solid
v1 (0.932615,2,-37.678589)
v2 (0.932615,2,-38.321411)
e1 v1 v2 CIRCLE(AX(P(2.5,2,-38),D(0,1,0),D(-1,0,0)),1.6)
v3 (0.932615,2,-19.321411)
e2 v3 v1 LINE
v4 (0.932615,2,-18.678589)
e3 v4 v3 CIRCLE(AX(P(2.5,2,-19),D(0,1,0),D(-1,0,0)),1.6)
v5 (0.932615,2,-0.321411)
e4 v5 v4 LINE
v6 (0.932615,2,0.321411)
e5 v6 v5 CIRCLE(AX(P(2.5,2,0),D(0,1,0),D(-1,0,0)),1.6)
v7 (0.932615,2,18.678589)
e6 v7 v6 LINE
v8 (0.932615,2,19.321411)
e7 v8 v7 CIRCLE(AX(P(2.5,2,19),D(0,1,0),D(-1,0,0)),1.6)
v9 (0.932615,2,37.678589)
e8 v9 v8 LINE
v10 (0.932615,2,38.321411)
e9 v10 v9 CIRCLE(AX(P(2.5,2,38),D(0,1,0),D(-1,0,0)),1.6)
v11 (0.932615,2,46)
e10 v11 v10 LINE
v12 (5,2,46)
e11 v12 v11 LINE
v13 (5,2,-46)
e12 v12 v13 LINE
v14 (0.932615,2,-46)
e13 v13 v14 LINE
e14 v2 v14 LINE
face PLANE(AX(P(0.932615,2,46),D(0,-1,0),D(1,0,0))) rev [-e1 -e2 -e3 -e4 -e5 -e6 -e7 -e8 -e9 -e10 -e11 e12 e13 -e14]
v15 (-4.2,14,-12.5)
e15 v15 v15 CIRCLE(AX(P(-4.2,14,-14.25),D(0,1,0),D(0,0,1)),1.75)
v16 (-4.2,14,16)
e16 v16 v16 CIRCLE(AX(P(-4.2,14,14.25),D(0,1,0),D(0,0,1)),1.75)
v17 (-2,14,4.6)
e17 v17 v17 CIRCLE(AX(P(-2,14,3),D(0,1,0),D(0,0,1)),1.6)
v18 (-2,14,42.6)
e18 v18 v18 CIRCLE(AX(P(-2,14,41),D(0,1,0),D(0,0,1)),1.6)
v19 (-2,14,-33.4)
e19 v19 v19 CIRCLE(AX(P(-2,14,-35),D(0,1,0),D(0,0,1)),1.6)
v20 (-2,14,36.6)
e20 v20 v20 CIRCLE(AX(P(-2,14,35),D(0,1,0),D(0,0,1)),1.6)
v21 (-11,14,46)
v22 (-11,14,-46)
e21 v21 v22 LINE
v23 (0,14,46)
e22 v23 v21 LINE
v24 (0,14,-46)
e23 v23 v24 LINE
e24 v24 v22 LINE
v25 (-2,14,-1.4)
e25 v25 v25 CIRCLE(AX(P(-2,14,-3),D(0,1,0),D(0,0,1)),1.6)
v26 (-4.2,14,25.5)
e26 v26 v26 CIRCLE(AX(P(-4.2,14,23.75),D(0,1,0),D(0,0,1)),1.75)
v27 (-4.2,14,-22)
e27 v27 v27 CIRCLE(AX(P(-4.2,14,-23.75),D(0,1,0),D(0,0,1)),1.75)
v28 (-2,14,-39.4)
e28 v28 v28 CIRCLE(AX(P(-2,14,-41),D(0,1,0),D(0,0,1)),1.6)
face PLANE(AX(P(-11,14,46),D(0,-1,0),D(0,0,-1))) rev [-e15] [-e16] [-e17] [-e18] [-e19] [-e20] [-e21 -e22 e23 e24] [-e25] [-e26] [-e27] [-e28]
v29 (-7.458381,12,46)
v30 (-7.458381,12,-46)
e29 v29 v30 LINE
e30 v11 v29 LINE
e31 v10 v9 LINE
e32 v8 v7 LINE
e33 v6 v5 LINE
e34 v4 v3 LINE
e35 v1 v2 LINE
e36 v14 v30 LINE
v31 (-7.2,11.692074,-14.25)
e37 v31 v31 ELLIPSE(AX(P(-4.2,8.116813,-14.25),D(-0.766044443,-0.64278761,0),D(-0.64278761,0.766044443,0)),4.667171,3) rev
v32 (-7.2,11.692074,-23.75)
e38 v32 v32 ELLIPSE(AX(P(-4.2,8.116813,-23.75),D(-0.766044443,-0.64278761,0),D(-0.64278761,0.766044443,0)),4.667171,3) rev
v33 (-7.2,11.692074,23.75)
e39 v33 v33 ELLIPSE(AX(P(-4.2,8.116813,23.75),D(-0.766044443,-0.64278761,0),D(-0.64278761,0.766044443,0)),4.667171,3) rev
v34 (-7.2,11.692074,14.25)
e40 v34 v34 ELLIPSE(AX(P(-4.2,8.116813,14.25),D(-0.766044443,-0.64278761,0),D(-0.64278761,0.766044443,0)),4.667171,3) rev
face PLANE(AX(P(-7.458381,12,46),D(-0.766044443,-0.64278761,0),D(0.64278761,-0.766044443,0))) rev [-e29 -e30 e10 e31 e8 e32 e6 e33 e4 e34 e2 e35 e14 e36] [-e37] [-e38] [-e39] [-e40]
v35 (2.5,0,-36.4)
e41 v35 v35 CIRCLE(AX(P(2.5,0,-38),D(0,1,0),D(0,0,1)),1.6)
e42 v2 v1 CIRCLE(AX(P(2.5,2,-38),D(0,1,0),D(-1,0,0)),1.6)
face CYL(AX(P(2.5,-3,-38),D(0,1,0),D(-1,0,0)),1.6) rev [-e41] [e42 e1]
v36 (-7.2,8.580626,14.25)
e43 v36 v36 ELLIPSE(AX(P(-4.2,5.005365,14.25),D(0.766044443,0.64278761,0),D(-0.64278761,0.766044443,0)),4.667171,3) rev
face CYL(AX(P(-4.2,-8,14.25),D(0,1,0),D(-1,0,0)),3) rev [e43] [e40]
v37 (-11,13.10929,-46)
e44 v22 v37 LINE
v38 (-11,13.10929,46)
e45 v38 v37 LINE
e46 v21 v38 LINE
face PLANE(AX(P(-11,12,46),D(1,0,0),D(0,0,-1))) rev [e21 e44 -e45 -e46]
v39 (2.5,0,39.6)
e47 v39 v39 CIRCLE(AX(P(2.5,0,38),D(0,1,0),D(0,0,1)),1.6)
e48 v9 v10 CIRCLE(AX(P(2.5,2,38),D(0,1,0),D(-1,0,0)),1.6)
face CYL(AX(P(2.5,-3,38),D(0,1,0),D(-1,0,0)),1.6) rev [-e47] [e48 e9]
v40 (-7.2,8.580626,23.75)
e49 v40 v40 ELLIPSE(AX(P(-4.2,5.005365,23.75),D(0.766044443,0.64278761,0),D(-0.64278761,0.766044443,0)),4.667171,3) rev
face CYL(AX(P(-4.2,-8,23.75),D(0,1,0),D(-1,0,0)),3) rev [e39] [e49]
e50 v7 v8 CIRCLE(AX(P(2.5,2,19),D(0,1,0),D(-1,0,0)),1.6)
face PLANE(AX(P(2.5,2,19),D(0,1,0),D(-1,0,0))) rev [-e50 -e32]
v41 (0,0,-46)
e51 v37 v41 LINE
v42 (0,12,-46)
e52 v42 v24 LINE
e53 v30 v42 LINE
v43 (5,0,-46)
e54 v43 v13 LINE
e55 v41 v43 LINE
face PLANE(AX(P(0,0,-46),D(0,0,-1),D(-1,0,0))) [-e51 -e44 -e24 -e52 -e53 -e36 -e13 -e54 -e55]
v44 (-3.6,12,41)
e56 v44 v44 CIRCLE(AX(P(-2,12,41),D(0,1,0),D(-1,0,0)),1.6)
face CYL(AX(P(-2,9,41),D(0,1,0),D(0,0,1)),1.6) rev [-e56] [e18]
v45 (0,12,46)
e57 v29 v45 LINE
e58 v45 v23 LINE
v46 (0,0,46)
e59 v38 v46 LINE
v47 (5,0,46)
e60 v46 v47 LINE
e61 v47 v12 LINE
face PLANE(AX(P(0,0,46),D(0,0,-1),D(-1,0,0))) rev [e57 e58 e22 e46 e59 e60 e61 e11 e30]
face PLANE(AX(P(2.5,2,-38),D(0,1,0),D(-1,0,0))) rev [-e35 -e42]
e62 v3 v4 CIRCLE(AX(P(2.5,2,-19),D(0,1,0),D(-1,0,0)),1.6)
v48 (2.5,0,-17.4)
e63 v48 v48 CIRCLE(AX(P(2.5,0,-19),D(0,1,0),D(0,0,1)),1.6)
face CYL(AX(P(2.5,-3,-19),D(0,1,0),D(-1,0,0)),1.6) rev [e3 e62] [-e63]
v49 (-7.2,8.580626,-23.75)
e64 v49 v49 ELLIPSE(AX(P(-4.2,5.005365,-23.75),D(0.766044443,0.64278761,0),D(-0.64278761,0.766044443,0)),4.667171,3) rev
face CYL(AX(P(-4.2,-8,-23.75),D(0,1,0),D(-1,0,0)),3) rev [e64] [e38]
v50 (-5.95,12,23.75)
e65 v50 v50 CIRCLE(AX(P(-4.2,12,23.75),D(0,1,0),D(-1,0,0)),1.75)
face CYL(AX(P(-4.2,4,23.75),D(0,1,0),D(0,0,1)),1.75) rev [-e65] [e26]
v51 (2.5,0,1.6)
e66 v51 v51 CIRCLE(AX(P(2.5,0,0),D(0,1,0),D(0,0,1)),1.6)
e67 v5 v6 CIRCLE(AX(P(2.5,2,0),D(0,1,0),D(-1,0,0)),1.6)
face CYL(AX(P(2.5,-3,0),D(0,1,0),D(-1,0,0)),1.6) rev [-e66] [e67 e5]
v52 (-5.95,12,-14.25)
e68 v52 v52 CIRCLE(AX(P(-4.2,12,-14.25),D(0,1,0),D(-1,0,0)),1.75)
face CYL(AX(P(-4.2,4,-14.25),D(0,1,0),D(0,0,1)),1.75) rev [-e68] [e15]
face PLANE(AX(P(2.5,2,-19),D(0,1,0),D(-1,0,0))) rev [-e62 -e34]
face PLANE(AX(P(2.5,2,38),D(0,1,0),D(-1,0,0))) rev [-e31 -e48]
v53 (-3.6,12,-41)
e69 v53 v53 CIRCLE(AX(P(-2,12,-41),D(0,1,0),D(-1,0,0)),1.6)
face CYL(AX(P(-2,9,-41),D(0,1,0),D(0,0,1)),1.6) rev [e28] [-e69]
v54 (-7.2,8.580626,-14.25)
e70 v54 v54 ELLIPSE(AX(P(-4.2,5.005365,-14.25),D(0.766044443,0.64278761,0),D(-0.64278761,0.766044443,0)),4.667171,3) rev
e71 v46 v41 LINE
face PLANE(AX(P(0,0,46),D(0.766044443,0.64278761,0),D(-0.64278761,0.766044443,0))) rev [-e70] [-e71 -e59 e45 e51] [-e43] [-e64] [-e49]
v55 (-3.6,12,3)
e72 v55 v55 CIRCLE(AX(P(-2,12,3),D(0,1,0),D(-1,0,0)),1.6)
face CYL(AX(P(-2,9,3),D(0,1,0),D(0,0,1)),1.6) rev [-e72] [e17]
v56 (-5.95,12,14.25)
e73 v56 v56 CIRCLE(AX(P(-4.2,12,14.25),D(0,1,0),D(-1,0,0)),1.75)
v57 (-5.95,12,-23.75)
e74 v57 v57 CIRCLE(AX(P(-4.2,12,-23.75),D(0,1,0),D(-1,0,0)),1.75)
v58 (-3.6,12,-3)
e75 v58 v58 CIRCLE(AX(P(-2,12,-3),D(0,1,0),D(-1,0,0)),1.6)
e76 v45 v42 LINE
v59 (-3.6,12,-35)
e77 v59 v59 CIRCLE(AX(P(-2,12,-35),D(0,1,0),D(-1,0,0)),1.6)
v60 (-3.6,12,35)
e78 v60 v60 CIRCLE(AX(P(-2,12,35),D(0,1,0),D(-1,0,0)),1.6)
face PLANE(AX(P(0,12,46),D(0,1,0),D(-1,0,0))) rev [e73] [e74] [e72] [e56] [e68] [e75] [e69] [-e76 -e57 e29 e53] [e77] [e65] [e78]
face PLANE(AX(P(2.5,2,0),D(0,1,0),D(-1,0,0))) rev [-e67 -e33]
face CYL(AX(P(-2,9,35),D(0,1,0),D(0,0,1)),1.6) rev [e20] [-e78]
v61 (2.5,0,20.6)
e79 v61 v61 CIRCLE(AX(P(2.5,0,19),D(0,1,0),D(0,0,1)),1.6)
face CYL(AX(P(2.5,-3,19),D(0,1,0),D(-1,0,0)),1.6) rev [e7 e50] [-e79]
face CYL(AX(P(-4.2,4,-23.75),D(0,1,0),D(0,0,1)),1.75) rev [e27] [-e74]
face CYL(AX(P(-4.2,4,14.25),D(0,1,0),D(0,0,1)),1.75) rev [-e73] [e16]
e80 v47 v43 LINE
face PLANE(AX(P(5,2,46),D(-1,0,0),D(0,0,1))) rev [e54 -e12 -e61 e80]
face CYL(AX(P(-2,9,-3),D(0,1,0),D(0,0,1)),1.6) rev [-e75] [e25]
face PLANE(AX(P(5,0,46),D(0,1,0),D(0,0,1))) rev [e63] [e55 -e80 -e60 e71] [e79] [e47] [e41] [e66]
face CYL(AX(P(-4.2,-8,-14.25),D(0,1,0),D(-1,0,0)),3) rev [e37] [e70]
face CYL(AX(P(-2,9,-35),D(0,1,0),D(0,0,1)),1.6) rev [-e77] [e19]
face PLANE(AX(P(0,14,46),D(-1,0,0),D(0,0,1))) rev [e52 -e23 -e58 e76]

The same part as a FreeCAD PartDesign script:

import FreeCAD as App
import Part
import Sketcher

V = App.Vector
Q = App.Units.Quantity


def add_polygon(sketch, points):
    """Adds a closed chain of lines whose ends are joined by coincident constraints."""
    first, n = sketch.GeometryCount, len(points)
    for a, b in zip(points, points[1:] + points[:1]):
        sketch.addGeometry(Part.LineSegment(App.Vector(*a, 0), App.Vector(*b, 0)), False)
    for i in range(n):
        sketch.addConstraint(Sketcher.Constraint("Coincident", first + i, 2, first + (i + 1) % n, 1))

doc = App.newDocument("Part")
params = doc.addObject("Spreadsheet::Sheet", "Params")
for row, (alias, value) in enumerate([
    ("sketch1_width", "5 mm"),
    ("sketch1_width2", "11 mm"),
    ("sketch1_height", "2 mm"),
    ("pad1_length", "46 mm"),
    ("pad1_length2", "46 mm"),
    ("sketch2_diameter", "3.2 mm"),
    ("pocket1_length", "5 mm"),
    ("sketch3_diameter", "3.2 mm"),
    ("pocket2_length", "5 mm"),
    ("sketch4_diameter", "3.5 mm"),
    ("pocket3_length", "10 mm"),
    ("sketch5_diameter", "6 mm"),
    ("pocket4_length", "20 mm"),
    ("pocket5_length", "20 mm"),
], start=1):
    params.set(f"A{row}", alias)
    params.set(f"B{row}", "=" + value)
    params.setAlias(f"B{row}", alias)

body = doc.addObject("PartDesign::Body", "Body")

# Sketch on XY plane
sketch1 = body.newObject("Sketcher::SketchObject", "Sketch")
sketch1.AttachmentSupport = (doc.getObject("XY_Plane"), [""])
sketch1.MapMode = "FlatFace"
add_polygon(sketch1, [(0, 0), (5, 0), (5, 2), (0.9, 2), (-7.5, 12), (0, 12), (0, 14), (-11, 14), (-11, 12), (-10.1, 12)])  # lines 0-9
sketch1.addConstraint(Sketcher.Constraint("Horizontal", 0))
sketch1.addConstraint(Sketcher.Constraint("Vertical", 1))
sketch1.addConstraint(Sketcher.Constraint("Horizontal", 2))
sketch1.addConstraint(Sketcher.Constraint("Horizontal", 4))
sketch1.addConstraint(Sketcher.Constraint("Vertical", 5))
sketch1.addConstraint(Sketcher.Constraint("Horizontal", 6))
sketch1.addConstraint(Sketcher.Constraint("Vertical", 7))
sketch1.addConstraint(Sketcher.Constraint("Horizontal", 8))
sketch1.addConstraint(Sketcher.Constraint("Coincident", 9, 2, -1, 1))
sketch1.addConstraint(Sketcher.Constraint("PointOnObject", 4, 2, -2))
sketch1.addConstraint(Sketcher.Constraint("Parallel", 3, 9))
sketch1.addConstraint(Sketcher.Constraint("Horizontal", 4, 2, 7, 2))
sketch1.addConstraint(Sketcher.Constraint("Equal", 1, 5))
sketch1.addConstraint(Sketcher.Constraint("DistanceX", 0, 1, 0, 2, Q("5 mm")))
sketch1.addConstraint(Sketcher.Constraint("DistanceX", 6, 2, 6, 1, Q("11 mm")))
sketch1.addConstraint(Sketcher.Constraint("DistanceY", 1, 1, 1, 2, Q("2 mm")))
sketch1.addConstraint(Sketcher.Constraint("Angle", 3, Q("130 deg")))
sketch1.addConstraint(Sketcher.Constraint("DistanceY", -1, 1, 3, 2, Q("12 mm")))
sketch1.addConstraint(Sketcher.Constraint("DistanceX", 4, 1, 4, 2, Q("7.458381 mm")))
sketch1.setExpression("Constraints[23]", "Params.sketch1_width")
sketch1.setExpression("Constraints[24]", "Params.sketch1_width2")
sketch1.setExpression("Constraints[25]", "Params.sketch1_height")
pad1 = body.newObject("PartDesign::Pad", "Pad")
pad1.Profile = sketch1
pad1.Type = "TwoLengths"
pad1.setExpression("Length", "Params.pad1_length")
pad1.setExpression("Length2", "Params.pad1_length2")

# Sketch on XZ plane
sketch2 = body.newObject("Sketcher::SketchObject", "Sketch001")
sketch2.AttachmentSupport = (doc.getObject("XZ_Plane"), [""])
sketch2.MapMode = "FlatFace"
sketch2.AttachmentOffset = App.Placement(V(0, 0, -14), App.Rotation())
sketch2.addGeometry(Part.Circle(V(-2, -41, 0), V(0, 0, 1), 1.6), False)
sketch2.addGeometry(Part.Circle(V(-2, -35, 0), V(0, 0, 1), 1.6), False)
sketch2.addGeometry(Part.Circle(V(-2, -3, 0), V(0, 0, 1), 1.6), False)
sketch2.addGeometry(Part.Circle(V(-2, 3, 0), V(0, 0, 1), 1.6), False)
sketch2.addGeometry(Part.Circle(V(-2, 35, 0), V(0, 0, 1), 1.6), False)
sketch2.addGeometry(Part.Circle(V(-2, 41, 0), V(0, 0, 1), 1.6), False)
sketch2.addConstraint(Sketcher.Constraint("Equal", 0, 1))
sketch2.addConstraint(Sketcher.Constraint("Equal", 1, 2))
sketch2.addConstraint(Sketcher.Constraint("Equal", 2, 3))
sketch2.addConstraint(Sketcher.Constraint("Equal", 3, 4))
sketch2.addConstraint(Sketcher.Constraint("Equal", 4, 5))
sketch2.addConstraint(Sketcher.Constraint("Symmetric", 2, 3, 3, 3, -1))
sketch2.addConstraint(Sketcher.Constraint("Symmetric", 1, 3, 4, 3, -1))
sketch2.addConstraint(Sketcher.Constraint("Symmetric", 0, 3, 5, 3, -1))
sketch2.addConstraint(Sketcher.Constraint("Vertical", 0, 3, 1, 3))
sketch2.addConstraint(Sketcher.Constraint("Vertical", 1, 3, 2, 3))
sketch2.addConstraint(Sketcher.Constraint("Diameter", 0, Q("3.2 mm")))
sketch2.addConstraint(Sketcher.Constraint("DistanceX", 0, 3, -1, 1, Q("2 mm")))
sketch2.addConstraint(Sketcher.Constraint("DistanceY", 0, 3, -1, 1, Q("41 mm")))
sketch2.addConstraint(Sketcher.Constraint("DistanceY", 1, 3, -1, 1, Q("35 mm")))
sketch2.addConstraint(Sketcher.Constraint("DistanceY", 2, 3, -1, 1, Q("3 mm")))
sketch2.setExpression("Constraints[10]", "Params.sketch2_diameter")
pocket1 = body.newObject("PartDesign::Pocket", "Pocket")
pocket1.Profile = sketch2
pocket1.setExpression("Length", "Params.pocket1_length")
pocket1.Reversed = True

# Sketch on XZ plane
sketch3 = body.newObject("Sketcher::SketchObject", "Sketch002")
sketch3.AttachmentSupport = (doc.getObject("XZ_Plane"), [""])
sketch3.MapMode = "FlatFace"
sketch3.AttachmentOffset = App.Placement(V(0, 0, -2), App.Rotation())
sketch3.addGeometry(Part.Circle(V(2.5, -38, 0), V(0, 0, 1), 1.6), False)
sketch3.addGeometry(Part.Circle(V(2.5, -19, 0), V(0, 0, 1), 1.6), False)
sketch3.addGeometry(Part.Circle(V(2.5, 0, 0), V(0, 0, 1), 1.6), False)
sketch3.addGeometry(Part.Circle(V(2.5, 19, 0), V(0, 0, 1), 1.6), False)
sketch3.addGeometry(Part.Circle(V(2.5, 38, 0), V(0, 0, 1), 1.6), False)
sketch3.addConstraint(Sketcher.Constraint("Equal", 0, 1))
sketch3.addConstraint(Sketcher.Constraint("Equal", 1, 2))
sketch3.addConstraint(Sketcher.Constraint("Equal", 2, 3))
sketch3.addConstraint(Sketcher.Constraint("Equal", 3, 4))
sketch3.addConstraint(Sketcher.Constraint("Symmetric", 1, 3, 3, 3, -1))
sketch3.addConstraint(Sketcher.Constraint("Symmetric", 0, 3, 4, 3, -1))
sketch3.addConstraint(Sketcher.Constraint("PointOnObject", 2, 3, -1))
sketch3.addConstraint(Sketcher.Constraint("Vertical", 0, 3, 1, 3))
sketch3.addConstraint(Sketcher.Constraint("Vertical", 1, 3, 2, 3))
sketch3.addConstraint(Sketcher.Constraint("Diameter", 0, Q("3.2 mm")))
sketch3.addConstraint(Sketcher.Constraint("DistanceY", 0, 3, -1, 1, Q("38 mm")))
sketch3.addConstraint(Sketcher.Constraint("DistanceY", 1, 3, -1, 1, Q("19 mm")))
sketch3.addConstraint(Sketcher.Constraint("DistanceX", -1, 1, 0, 3, Q("2.5 mm")))
sketch3.setExpression("Constraints[9]", "Params.sketch3_diameter")
pocket2 = body.newObject("PartDesign::Pocket", "Pocket001")
pocket2.Profile = sketch3
pocket2.setExpression("Length", "Params.pocket2_length")
pocket2.Reversed = True

# Sketch on XZ plane
sketch4 = body.newObject("Sketcher::SketchObject", "Sketch003")
sketch4.AttachmentSupport = (doc.getObject("XZ_Plane"), [""])
sketch4.MapMode = "FlatFace"
sketch4.AttachmentOffset = App.Placement(V(0, 0, -14), App.Rotation())
sketch4.addGeometry(Part.Circle(V(-4.2, -23.8, 0), V(0, 0, 1), 1.8), False)
sketch4.addGeometry(Part.Circle(V(-4.2, -14.2, 0), V(0, 0, 1), 1.8), False)
sketch4.addGeometry(Part.Circle(V(-4.2, 14.2, 0), V(0, 0, 1), 1.8), False)
sketch4.addGeometry(Part.Circle(V(-4.2, 23.8, 0), V(0, 0, 1), 1.8), False)
sketch4.addConstraint(Sketcher.Constraint("Equal", 0, 1))
sketch4.addConstraint(Sketcher.Constraint("Equal", 1, 2))
sketch4.addConstraint(Sketcher.Constraint("Equal", 2, 3))
sketch4.addConstraint(Sketcher.Constraint("Symmetric", 1, 3, 2, 3, -1))
sketch4.addConstraint(Sketcher.Constraint("Symmetric", 0, 3, 3, 3, -1))
sketch4.addConstraint(Sketcher.Constraint("Vertical", 0, 3, 1, 3))
sketch4.addConstraint(Sketcher.Constraint("Diameter", 0, Q("3.5 mm")))
sketch4.addConstraint(Sketcher.Constraint("DistanceY", 0, 3, 2, 3, Q("38 mm")))
sketch4.addConstraint(Sketcher.Constraint("DistanceX", 0, 3, -1, 1, Q("4.2 mm")))
sketch4.addConstraint(Sketcher.Constraint("DistanceY", 0, 3, 1, 3, Q("9.5 mm")))
sketch4.setExpression("Constraints[6]", "Params.sketch4_diameter")
pocket3 = body.newObject("PartDesign::Pocket", "Pocket002")
pocket3.Profile = sketch4
pocket3.setExpression("Length", "Params.pocket3_length")
pocket3.Reversed = True

# Sketch on XZ plane
sketch5 = body.newObject("Sketcher::SketchObject", "Sketch004")
sketch5.AttachmentSupport = (doc.getObject("XZ_Plane"), [""])
sketch5.MapMode = "FlatFace"
sketch5.AttachmentOffset = App.Placement(V(0, 0, -12), App.Rotation())
sketch5.addGeometry(Part.Circle(V(-4.2, 23.8, 0), V(0, 0, 1), 3), False)
sketch5.addGeometry(Part.Circle(V(-4.2, 14.2, 0), V(0, 0, 1), 3), False)
sketch5.addGeometry(Part.Circle(V(-4.2, -14.2, 0), V(0, 0, 1), 3), False)
sketch5.addGeometry(Part.Circle(V(-4.2, -23.8, 0), V(0, 0, 1), 3), False)
sketch5.addConstraint(Sketcher.Constraint("Equal", 0, 1))
sketch5.addConstraint(Sketcher.Constraint("Equal", 1, 2))
sketch5.addConstraint(Sketcher.Constraint("Equal", 2, 3))
sketch5.addConstraint(Sketcher.Constraint("Symmetric", 1, 3, 2, 3, -1))
sketch5.addConstraint(Sketcher.Constraint("Symmetric", 0, 3, 3, 3, -1))
sketch5.addConstraint(Sketcher.Constraint("Vertical", 0, 3, 1, 3))
sketch5.addConstraint(Sketcher.Constraint("Diameter", 0, Q("6 mm")))
sketch5.addConstraint(Sketcher.Constraint("DistanceY", 2, 3, 0, 3, Q("38 mm")))
sketch5.addConstraint(Sketcher.Constraint("DistanceX", 0, 3, -1, 1, Q("4.2 mm")))
sketch5.addConstraint(Sketcher.Constraint("DistanceY", 1, 3, 0, 3, Q("9.5 mm")))
sketch5.setExpression("Constraints[6]", "Params.sketch5_diameter")
pocket4 = body.newObject("PartDesign::Pocket", "Pocket003")
pocket4.Profile = sketch5
pocket4.setExpression("Length", "Params.pocket4_length")
pocket4.Reversed = True

# Sketch on an angled plane
sketch6 = body.newObject("Sketcher::SketchObject", "Sketch005")
sketch6.Placement = App.Placement(V(0, 0, 0), App.Rotation(V(0, 0, 1), V(-0.64278761, 0.766044443, 0), V(-0.766044443, -0.64278761, 0), "ZXY"))
add_polygon(sketch6, [(-57, 32), (-57, 11), (52, 11), (52, 32)])  # lines 0-3
sketch6.addConstraint(Sketcher.Constraint("Vertical", 0))
sketch6.addConstraint(Sketcher.Constraint("Horizontal", 1))
sketch6.addConstraint(Sketcher.Constraint("Vertical", 2))
sketch6.addConstraint(Sketcher.Constraint("Horizontal", 3))
sketch6.addConstraint(Sketcher.Constraint("DistanceX", 1, 1, 1, 2, Q("108.593038 mm")))
sketch6.addConstraint(Sketcher.Constraint("DistanceY", 0, 2, 0, 1, Q("21.321921 mm")))
sketch6.addConstraint(Sketcher.Constraint("DistanceY", -1, 1, 0, 2, Q("11.059199 mm")))
sketch6.addConstraint(Sketcher.Constraint("DistanceX", 0, 2, -1, 1, Q("56.627055 mm")))
pocket5 = body.newObject("PartDesign::Pocket", "Pocket004")
pocket5.Profile = sketch6
pocket5.setExpression("Length", "Params.pocket5_length")
pocket5.Reversed = True

doc.recompute()
